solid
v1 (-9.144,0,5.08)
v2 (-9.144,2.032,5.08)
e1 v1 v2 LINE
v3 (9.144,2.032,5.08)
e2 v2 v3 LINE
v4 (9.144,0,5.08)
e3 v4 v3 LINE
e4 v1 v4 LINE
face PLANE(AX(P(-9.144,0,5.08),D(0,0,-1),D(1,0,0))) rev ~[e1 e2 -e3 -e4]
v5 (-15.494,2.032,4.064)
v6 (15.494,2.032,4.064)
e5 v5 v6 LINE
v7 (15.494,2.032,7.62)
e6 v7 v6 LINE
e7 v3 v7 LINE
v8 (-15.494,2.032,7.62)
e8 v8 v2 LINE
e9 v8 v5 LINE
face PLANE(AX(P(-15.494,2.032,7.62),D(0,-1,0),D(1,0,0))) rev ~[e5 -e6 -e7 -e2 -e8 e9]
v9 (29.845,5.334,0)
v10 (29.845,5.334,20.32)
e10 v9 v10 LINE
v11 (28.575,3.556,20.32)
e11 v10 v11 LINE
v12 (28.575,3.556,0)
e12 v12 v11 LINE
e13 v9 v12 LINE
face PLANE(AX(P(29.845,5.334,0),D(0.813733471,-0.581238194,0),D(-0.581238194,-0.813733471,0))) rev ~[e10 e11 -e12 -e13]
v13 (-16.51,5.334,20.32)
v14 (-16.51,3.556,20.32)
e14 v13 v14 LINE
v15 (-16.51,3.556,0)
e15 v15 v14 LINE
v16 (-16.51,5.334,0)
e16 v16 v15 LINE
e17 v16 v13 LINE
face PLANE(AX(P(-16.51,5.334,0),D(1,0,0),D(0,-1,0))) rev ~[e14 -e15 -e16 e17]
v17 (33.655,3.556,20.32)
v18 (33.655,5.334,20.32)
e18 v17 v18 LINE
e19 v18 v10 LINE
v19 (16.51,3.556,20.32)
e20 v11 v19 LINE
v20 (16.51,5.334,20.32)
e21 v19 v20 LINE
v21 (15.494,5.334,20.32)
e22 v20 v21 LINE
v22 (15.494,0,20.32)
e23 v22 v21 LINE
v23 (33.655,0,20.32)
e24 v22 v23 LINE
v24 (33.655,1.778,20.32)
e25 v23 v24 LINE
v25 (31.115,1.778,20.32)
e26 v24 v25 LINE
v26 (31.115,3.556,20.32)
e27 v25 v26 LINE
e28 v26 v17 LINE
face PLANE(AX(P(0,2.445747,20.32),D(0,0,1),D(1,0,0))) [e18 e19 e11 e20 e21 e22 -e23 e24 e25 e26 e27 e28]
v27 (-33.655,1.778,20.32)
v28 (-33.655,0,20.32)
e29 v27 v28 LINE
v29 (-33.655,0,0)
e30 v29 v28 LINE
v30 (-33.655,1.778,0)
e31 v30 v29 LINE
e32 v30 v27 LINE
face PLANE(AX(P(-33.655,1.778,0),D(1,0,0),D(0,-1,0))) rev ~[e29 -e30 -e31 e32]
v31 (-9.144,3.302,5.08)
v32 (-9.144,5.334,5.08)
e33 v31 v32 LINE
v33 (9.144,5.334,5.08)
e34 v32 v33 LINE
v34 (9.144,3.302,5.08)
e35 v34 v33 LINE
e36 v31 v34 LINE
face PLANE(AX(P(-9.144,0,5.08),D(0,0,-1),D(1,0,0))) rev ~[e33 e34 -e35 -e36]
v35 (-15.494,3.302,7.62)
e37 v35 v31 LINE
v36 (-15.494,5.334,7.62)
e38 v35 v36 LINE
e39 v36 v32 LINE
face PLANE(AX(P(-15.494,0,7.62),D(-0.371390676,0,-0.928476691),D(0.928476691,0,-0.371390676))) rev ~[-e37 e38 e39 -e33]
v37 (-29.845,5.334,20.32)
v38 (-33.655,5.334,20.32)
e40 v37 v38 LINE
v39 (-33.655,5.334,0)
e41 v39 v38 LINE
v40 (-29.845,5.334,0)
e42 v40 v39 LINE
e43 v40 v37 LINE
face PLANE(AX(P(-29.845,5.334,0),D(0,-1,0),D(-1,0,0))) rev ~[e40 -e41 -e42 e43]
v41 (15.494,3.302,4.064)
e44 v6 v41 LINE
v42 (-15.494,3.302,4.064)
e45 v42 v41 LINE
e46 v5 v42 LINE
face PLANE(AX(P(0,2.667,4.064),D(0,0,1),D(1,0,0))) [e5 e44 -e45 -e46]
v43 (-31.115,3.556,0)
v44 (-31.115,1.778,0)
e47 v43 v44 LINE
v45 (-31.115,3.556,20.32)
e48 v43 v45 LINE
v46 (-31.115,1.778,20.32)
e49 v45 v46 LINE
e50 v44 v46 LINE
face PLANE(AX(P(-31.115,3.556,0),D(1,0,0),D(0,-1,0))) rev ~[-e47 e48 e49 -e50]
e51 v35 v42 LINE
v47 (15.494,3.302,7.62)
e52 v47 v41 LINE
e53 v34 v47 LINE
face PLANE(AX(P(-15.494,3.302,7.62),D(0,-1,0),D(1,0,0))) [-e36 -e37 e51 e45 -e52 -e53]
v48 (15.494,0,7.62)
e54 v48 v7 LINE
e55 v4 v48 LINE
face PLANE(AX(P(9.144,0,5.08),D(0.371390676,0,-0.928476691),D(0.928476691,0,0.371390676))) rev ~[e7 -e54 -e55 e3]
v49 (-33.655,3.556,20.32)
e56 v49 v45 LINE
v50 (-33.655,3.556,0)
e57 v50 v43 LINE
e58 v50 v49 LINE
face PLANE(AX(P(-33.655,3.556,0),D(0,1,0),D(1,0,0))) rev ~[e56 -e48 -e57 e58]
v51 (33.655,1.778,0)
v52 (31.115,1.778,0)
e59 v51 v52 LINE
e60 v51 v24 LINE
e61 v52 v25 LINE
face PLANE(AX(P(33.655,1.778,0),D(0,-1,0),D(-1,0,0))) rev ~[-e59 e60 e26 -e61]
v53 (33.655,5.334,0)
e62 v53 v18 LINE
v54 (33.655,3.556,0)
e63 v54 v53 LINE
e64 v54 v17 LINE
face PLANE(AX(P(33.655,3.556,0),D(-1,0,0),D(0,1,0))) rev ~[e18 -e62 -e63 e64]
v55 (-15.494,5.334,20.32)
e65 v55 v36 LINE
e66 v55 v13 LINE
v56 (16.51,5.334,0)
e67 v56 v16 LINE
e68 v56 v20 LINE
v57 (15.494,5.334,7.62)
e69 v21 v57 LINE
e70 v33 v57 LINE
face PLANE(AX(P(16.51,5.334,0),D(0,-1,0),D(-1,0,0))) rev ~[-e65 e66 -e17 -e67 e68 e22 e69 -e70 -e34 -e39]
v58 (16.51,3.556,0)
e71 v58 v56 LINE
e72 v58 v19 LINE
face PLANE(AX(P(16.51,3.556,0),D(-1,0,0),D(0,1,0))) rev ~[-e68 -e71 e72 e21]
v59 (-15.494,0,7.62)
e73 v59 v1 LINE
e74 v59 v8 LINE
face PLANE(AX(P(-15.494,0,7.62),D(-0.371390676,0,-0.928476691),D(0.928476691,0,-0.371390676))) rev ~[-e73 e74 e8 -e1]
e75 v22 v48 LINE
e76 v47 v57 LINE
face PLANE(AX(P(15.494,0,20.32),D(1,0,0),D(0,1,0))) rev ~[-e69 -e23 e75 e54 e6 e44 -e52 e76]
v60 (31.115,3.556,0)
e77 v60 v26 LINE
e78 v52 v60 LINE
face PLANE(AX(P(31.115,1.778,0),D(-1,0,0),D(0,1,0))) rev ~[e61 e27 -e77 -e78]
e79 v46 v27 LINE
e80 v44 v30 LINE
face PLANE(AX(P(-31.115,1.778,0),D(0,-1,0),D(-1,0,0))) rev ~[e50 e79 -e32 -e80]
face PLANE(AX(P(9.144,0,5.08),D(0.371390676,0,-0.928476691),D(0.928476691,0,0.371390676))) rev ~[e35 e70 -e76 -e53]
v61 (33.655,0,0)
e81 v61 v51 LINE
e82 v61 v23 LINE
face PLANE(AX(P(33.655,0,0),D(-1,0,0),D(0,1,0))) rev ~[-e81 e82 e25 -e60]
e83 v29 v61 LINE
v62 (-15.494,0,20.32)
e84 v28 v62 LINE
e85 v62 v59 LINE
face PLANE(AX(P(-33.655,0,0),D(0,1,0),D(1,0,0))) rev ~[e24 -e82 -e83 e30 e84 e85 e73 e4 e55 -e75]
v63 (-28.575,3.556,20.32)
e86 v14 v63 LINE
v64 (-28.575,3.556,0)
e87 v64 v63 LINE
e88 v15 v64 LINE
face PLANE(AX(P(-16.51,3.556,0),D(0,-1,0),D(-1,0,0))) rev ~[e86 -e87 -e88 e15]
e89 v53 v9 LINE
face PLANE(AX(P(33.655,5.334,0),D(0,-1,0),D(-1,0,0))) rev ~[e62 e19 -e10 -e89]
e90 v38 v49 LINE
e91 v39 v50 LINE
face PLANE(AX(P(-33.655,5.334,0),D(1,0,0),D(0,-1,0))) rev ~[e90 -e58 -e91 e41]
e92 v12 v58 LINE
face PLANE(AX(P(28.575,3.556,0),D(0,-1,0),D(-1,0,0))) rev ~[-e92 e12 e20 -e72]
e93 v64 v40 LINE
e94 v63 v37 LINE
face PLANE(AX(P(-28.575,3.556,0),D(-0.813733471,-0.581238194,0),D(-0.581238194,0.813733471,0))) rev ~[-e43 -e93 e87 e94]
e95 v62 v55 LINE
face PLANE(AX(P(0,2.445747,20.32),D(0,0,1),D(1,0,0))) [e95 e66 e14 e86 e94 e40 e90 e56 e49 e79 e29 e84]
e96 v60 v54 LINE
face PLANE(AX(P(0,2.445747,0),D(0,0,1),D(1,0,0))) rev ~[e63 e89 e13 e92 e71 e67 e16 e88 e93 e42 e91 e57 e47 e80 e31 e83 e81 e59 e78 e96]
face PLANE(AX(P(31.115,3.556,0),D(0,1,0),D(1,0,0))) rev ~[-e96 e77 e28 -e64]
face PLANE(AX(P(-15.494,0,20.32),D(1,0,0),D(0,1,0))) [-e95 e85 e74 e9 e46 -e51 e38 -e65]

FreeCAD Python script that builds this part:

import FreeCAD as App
import Part
import Sketcher
Q = App.Units.Quantity


def add_polygon(sketch, points):
    """Adds a closed chain of lines whose ends are joined by coincident constraints."""
    first, n = sketch.GeometryCount, len(points)
    for a, b in zip(points, points[1:] + points[:1]):
        sketch.addGeometry(Part.LineSegment(App.Vector(*a, 0), App.Vector(*b, 0)), False)
    for i in range(n):
        sketch.addConstraint(Sketcher.Constraint("Coincident", first + i, 2, first + (i + 1) % n, 1))

doc = App.newDocument("Part")
body = doc.addObject("PartDesign::Body", "Body")

# Sketch on XY plane
sketch1 = doc.addObject("Sketcher::SketchObject", "Sketch")
body.addObject(sketch1)
sketch1.AttachmentSupport = (doc.XY_Plane, [""])
sketch1.MapMode = "FlatFace"
add_polygon(sketch1, [(-31.1, 1.8), (-33.7, 1.8), (-33.7, 0), (33.7, 0), (33.7, 1.8), (31.1, 1.8), (31.1, 3.6), (33.7, 3.6), (33.7, 5.3), (29.8, 5.3), (28.6, 3.6), (16.5, 3.6), (16.5, 5.3), (-16.5, 5.3), (-16.5, 3.6), (-28.6, 3.6), (-29.8, 5.3), (-33.7, 5.3), (-33.7, 3.6), (-31.1, 3.6)])  # lines 0-19
sketch1.addConstraint([
    Sketcher.Constraint("Horizontal", 0),
    Sketcher.Constraint("Vertical", 1),
    Sketcher.Constraint("Horizontal", 2),
    Sketcher.Constraint("Vertical", 3),
    Sketcher.Constraint("Horizontal", 4),
    Sketcher.Constraint("Vertical", 5),
    Sketcher.Constraint("Horizontal", 6),
    Sketcher.Constraint("Vertical", 7),
    Sketcher.Constraint("Horizontal", 8),
    Sketcher.Constraint("Horizontal", 10),
    Sketcher.Constraint("Vertical", 11),
    Sketcher.Constraint("Horizontal", 12),
    Sketcher.Constraint("Vertical", 13),
    Sketcher.Constraint("Horizontal", 14),
    Sketcher.Constraint("Horizontal", 16),
    Sketcher.Constraint("Vertical", 17),
    Sketcher.Constraint("Horizontal", 18),
    Sketcher.Constraint("Vertical", 19),
    Sketcher.Constraint("Symmetric", 1, 2, 2, 2, -1, 1),
    Sketcher.Constraint("Symmetric", 10, 2, 13, 2, -2),
    Sketcher.Constraint("Symmetric", 8, 2, 15, 2, -2),
    Sketcher.Constraint("Symmetric", 6, 2, 17, 2, -2),
    Sketcher.Constraint("Symmetric", 4, 2, 19, 2, -2),
    Sketcher.Constraint("Horizontal", 6, 2, 9, 2),
    Sketcher.Constraint("Horizontal", 8, 2, 11, 2),
    Sketcher.Constraint("Vertical", 3, 2, 6, 2),
    Sketcher.Constraint("Equal", 10, 14),
    Sketcher.Constraint("Equal", 3, 5),
    Sketcher.Constraint("Equal", 5, 7),
    Sketcher.Constraint("DistanceX", 0, 2, 0, 1, Q("0.1 in")),
    Sketcher.Constraint("DistanceX", 12, 2, 12, 1, Q("1.3 in")),
    Sketcher.Constraint("DistanceX", 2, 1, 2, 2, Q("2.65 in")),
    Sketcher.Constraint("DistanceX", 8, 2, 8, 1, Q("0.15 in")),
    Sketcher.Constraint("DistanceY", 1, 2, 1, 1, Q("0.07 in")),
    Sketcher.Constraint("DistanceX", 9, 2, 5, 2, Q("0.1 in")),
])
pad1 = doc.addObject("PartDesign::Pad", "Pad")
body.addObject(pad1)
pad1.Profile = sketch1
pad1.Length = Q("0.8 in")

# Sketch on XY plane
sketch2 = doc.addObject("Sketcher::SketchObject", "Sketch001")
body.addObject(sketch2)
sketch2.AttachmentSupport = (doc.XY_Plane, [""])
sketch2.MapMode = "FlatFace"
sketch2.AttachmentOffset = App.Placement(App.Vector(0, 0, 0.8 * 25.4), App.Rotation())
add_polygon(sketch2, [(-15, 5), (-15, 0), (15, 0), (15, 5)])  # lines 0-3
sketch2.addConstraint([
    Sketcher.Constraint("Vertical", 0),
    Sketcher.Constraint("Horizontal", 1),
    Sketcher.Constraint("Vertical", 2),
    Sketcher.Constraint("Horizontal", 3),
    Sketcher.Constraint("Symmetric", 0, 2, 1, 2, -1, 1),
    Sketcher.Constraint("DistanceX", 1, 1, 1, 2, Q("1.22 in")),
    Sketcher.Constraint("DistanceY", 0, 2, 0, 1, Q("0.21 in")),
])
pocket1 = doc.addObject("PartDesign::Pocket", "Pocket")
body.addObject(pocket1)
pocket1.Profile = sketch2
pocket1.Length = Q("0.5 in")

# Sketch on XY plane
sketch3 = doc.addObject("Sketcher::SketchObject", "Sketch002")
body.addObject(sketch3)
sketch3.AttachmentSupport = (doc.XY_Plane, [""])
sketch3.MapMode = "FlatFace"
sketch3.AttachmentOffset = App.Placement(App.Vector(0, 0, 0.3 * 25.4), App.Rotation())
add_polygon(sketch3, [(-15.5, 3.3), (-15.5, 2), (15.5, 2), (15.5, 3.3)])  # lines 0-3
sketch3.addConstraint([
    Sketcher.Constraint("Vertical", 0),
    Sketcher.Constraint("Horizontal", 1),
    Sketcher.Constraint("Vertical", 2),
    Sketcher.Constraint("Horizontal", 3),
    Sketcher.Constraint("DistanceX", 1, 1, 1, 2, Q("1.22 in")),
    Sketcher.Constraint("DistanceY", 0, 2, 0, 1, Q("0.05 in")),
    Sketcher.Constraint("DistanceX", 0, 2, -1, 1, Q("0.61 in")),
    Sketcher.Constraint("DistanceY", -1, 1, 0, 2, Q("0.08 in")),
])
pocket2 = doc.addObject("PartDesign::Pocket", "Pocket001")
body.addObject(pocket2)
pocket2.Profile = sketch3
pocket2.Length = Q("0.14 in")

# Sketch on XZ plane
sketch4 = doc.addObject("Sketcher::SketchObject", "Sketch003")
body.addObject(sketch4)
sketch4.AttachmentSupport = (doc.XZ_Plane, [""])
sketch4.MapMode = "FlatFace"
add_polygon(sketch4, [(15, 8), (-15, 8), (-9, 5), (9, 5)])  # lines 0-3
sketch4.addConstraint([
    Sketcher.Constraint("Horizontal", 0),
    Sketcher.Constraint("Horizontal", 2),
    Sketcher.Constraint("Equal", 1, 3),
    Sketcher.Constraint("DistanceX", 0, 2, 0, 1, Q("1.22 in")),
    Sketcher.Constraint("DistanceX", 2, 1, 2, 2, Q("0.72 in")),
    Sketcher.Constraint("DistanceY", -1, 1, 0, 2, Q("0.3 in")),
    Sketcher.Constraint("DistanceY", -1, 1, 1, 2, Q("0.2 in")),
    Sketcher.Constraint("DistanceX", 0, 2, -1, 1, Q("0.61 in")),
])
pocket3 = doc.addObject("PartDesign::Pocket", "Pocket002")
body.addObject(pocket3)
pocket3.Profile = sketch4
pocket3.Type = "ThroughAll"

doc.recompute()
